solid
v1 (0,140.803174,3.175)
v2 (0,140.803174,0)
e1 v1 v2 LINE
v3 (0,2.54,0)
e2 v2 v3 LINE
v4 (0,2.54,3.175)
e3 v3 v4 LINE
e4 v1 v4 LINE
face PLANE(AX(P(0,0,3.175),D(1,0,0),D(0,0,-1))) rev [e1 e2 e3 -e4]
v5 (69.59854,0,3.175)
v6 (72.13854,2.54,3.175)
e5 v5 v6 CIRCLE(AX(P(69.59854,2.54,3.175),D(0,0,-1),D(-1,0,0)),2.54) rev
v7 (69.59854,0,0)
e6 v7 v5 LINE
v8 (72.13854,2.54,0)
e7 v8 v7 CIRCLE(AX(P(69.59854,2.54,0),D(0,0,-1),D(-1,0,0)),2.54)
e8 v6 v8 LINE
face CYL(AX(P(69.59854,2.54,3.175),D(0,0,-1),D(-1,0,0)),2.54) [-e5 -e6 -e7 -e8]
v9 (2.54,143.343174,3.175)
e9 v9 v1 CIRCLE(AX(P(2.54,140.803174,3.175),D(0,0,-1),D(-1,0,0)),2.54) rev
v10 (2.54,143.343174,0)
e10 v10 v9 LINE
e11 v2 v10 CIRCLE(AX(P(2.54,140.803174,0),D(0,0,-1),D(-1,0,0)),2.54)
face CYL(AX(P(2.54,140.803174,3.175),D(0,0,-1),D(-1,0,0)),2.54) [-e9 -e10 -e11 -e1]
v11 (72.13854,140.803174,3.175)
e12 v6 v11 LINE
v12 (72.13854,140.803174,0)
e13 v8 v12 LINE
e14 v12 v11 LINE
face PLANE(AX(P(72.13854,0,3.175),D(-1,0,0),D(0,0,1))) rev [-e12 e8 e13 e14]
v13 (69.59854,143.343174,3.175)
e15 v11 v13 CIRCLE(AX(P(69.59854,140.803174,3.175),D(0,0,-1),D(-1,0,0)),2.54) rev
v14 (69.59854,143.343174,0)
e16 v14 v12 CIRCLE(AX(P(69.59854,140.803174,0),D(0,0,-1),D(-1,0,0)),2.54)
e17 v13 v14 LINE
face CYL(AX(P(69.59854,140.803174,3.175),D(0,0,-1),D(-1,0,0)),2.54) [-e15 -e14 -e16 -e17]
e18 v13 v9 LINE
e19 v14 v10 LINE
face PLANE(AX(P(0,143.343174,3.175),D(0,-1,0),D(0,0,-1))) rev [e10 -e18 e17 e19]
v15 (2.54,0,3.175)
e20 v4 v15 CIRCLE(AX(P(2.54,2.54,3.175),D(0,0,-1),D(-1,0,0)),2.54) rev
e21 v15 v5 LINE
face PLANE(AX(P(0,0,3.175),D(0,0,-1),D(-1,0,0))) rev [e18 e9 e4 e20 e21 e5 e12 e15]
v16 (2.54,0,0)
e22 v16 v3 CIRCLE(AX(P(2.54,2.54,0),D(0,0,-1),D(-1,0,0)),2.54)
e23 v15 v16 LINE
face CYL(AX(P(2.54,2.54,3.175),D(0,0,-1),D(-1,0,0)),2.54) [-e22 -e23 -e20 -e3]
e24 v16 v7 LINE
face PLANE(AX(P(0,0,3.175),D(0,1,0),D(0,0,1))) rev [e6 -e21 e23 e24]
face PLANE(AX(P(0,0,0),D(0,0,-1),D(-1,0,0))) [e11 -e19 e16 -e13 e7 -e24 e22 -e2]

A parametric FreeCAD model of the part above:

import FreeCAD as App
import Part
import Sketcher
Q = App.Units.Quantity


def edges_at(feature, points):
    """Names of the edges that pass closest to the given points."""
    edges = feature.Shape.Edges
    near = lambda p: min(range(len(edges)), key=lambda i: edges[i].distToShape(Part.Vertex(*p))[0])
    return sorted({f"Edge{near(p) + 1}" for p in points})

doc = App.newDocument("Part")
body = doc.addObject("PartDesign::Body", "Body")

sketch1 = doc.addObject("Sketcher::SketchObject", "Sketch")
body.addObject(sketch1)
sketch1.AttachmentSupport = (doc.XY_Plane, [""])
sketch1.MapMode = "FlatFace"
sketch1.addGeometry(Part.LineSegment(App.Vector(0, 143, 0), App.Vector(0, 0, 0)), False)
sketch1.addGeometry(Part.LineSegment(App.Vector(0, 0, 0), App.Vector(72, 0, 0)), False)
sketch1.addGeometry(Part.LineSegment(App.Vector(72, 0, 0), App.Vector(72, 143, 0)), False)
sketch1.addGeometry(Part.LineSegment(App.Vector(72, 143, 0), App.Vector(0, 143, 0)), False)
sketch1.addConstraint(Sketcher.Constraint("Coincident", 0, 2, 1, 1))
sketch1.addConstraint(Sketcher.Constraint("Coincident", 1, 2, 2, 1))
sketch1.addConstraint(Sketcher.Constraint("Coincident", 2, 2, 3, 1))
sketch1.addConstraint(Sketcher.Constraint("Coincident", 3, 2, 0, 1))
sketch1.addConstraint(Sketcher.Constraint("Vertical", 0))
sketch1.addConstraint(Sketcher.Constraint("Horizontal", 1))
sketch1.addConstraint(Sketcher.Constraint("Vertical", 2))
sketch1.addConstraint(Sketcher.Constraint("Horizontal", 3))
sketch1.addConstraint(Sketcher.Constraint("Coincident", 0, 2, -1, 1))
sketch1.addConstraint(Sketcher.Constraint("DistanceX", 1, 1, 1, 2, Q("2.8401 in")))
sketch1.addConstraint(Sketcher.Constraint("DistanceY", 0, 2, 0, 1, 143.343174))
pad1 = doc.addObject("PartDesign::Pad", "Pad")
body.addObject(pad1)
pad1.Profile = sketch1
pad1.Length = Q("0.125 in")
doc.recompute()

fillet = doc.addObject("PartDesign::Fillet", "Fillet")
body.addObject(fillet)
fillet.Base = (pad1, edges_at(pad1, [
    (0, 143.343, 1.587),
    (72.139, 143.343, 1.587),
    (72.139, 0, 1.587),
    (0, 0, 1.587),
]))
fillet.Radius = Q("0.1 in")

doc.recompute()
